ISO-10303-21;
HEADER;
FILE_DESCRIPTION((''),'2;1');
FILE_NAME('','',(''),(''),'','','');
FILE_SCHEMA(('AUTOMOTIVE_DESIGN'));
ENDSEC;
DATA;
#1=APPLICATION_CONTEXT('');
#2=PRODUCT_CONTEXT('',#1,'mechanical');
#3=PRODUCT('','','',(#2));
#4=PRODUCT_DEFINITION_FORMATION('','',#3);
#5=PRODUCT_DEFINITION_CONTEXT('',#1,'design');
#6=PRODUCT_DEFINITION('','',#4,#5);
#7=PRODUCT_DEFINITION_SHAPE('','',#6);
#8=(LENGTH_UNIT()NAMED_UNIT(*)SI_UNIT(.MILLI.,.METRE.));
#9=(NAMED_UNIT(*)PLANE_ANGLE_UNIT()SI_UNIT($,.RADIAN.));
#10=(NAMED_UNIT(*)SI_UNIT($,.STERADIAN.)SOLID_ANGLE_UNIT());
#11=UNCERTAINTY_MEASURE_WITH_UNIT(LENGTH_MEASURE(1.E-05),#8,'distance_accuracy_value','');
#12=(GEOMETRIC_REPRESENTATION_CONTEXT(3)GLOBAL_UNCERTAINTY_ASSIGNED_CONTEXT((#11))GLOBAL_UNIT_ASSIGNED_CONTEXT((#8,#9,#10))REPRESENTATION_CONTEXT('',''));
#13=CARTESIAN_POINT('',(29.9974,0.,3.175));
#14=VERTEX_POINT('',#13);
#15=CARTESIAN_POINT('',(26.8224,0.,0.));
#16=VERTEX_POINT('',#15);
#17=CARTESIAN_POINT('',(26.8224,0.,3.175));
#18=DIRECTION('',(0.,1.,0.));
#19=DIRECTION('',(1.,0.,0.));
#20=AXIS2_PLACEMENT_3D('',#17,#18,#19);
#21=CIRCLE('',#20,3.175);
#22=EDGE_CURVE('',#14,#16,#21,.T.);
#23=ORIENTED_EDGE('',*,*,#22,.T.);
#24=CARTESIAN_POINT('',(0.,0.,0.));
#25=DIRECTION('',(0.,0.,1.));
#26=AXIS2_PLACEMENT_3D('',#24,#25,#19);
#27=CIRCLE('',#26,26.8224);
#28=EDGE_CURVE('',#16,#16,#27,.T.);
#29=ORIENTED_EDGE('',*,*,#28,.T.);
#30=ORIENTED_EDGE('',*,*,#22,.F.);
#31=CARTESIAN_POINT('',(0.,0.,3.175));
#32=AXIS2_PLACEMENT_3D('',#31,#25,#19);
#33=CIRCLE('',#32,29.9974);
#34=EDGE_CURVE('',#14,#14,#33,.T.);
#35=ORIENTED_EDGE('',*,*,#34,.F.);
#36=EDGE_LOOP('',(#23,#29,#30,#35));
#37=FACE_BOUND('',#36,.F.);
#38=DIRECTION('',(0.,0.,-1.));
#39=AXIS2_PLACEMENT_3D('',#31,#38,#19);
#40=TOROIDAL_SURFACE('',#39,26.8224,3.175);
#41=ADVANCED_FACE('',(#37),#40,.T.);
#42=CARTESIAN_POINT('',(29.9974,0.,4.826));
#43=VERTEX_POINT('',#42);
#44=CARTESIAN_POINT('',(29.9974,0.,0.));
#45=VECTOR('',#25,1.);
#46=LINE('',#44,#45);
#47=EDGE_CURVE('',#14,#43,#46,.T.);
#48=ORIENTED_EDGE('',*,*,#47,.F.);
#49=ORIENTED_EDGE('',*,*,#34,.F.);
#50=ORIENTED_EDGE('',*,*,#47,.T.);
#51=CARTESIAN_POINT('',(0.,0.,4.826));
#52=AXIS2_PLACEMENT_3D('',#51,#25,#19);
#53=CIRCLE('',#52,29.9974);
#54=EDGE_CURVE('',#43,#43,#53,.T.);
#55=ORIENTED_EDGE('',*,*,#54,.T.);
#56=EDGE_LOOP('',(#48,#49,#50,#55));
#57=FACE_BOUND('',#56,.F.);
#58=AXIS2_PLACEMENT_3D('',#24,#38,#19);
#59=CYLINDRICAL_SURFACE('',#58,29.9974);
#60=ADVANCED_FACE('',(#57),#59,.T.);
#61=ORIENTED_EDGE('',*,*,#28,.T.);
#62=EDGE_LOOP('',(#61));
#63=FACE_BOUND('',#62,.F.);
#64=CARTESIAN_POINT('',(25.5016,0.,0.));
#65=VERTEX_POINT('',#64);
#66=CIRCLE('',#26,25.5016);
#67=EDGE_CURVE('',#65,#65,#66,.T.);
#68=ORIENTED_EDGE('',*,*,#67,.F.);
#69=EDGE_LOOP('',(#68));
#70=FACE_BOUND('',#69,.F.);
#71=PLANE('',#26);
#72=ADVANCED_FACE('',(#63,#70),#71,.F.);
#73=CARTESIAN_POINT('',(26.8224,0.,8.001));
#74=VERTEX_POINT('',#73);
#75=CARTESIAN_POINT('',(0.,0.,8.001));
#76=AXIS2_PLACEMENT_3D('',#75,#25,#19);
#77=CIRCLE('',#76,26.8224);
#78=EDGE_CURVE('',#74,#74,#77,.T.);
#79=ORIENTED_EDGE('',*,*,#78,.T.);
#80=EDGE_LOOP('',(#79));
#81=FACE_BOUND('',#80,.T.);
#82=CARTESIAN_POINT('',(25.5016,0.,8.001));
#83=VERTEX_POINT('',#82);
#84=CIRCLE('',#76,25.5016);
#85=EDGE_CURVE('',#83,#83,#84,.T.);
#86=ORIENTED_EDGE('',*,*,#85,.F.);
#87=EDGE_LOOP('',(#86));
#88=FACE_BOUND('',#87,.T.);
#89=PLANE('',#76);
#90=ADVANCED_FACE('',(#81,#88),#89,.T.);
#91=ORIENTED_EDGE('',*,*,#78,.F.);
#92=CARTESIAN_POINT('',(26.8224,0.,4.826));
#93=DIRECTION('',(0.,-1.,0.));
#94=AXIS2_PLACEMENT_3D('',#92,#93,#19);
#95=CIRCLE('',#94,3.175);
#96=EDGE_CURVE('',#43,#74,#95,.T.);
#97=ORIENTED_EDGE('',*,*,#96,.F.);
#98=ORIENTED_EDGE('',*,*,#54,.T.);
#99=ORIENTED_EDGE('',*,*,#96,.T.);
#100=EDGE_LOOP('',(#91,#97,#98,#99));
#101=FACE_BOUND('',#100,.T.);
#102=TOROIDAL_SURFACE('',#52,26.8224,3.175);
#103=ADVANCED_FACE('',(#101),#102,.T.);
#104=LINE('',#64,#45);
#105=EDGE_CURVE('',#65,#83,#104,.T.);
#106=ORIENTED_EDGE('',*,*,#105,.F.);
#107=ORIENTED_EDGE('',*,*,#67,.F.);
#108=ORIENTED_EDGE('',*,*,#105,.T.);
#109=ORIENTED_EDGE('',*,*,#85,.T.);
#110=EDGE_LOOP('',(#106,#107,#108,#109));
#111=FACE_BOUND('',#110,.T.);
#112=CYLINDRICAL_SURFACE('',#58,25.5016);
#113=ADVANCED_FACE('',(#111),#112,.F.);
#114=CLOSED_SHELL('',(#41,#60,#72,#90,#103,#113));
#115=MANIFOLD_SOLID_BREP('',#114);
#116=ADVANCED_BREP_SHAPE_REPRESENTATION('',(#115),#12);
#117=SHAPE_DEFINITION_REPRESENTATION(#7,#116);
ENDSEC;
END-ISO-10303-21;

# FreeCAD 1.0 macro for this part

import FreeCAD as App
import Part
import Sketcher
Q = App.Units.Quantity


def edges_at(feature, points):
    """Names of the edges that pass closest to the given points."""
    edges = feature.Shape.Edges
    near = lambda p: min(range(len(edges)), key=lambda i: edges[i].distToShape(Part.Vertex(*p))[0])
    return sorted({f"Edge{near(p) + 1}" for p in points})

doc = App.newDocument("Part")
body = doc.addObject("PartDesign::Body", "Body")

# Sketch on XY plane
sketch1 = body.newObject("Sketcher::SketchObject", "Sketch")
sketch1.AttachmentSupport = (doc.getObject("XY_Plane"), [""])
sketch1.MapMode = "FlatFace"
sketch1.addGeometry([
    Part.Circle(App.Vector(0, 0, 0), App.Vector(0, 0, 1), 29.9974),
    Part.Circle(App.Vector(0, 0, 0), App.Vector(0, 0, 1), 25.5016),
], False)
sketch1.addConstraint([
    Sketcher.Constraint("Coincident", 0, 3, -1, 1),
    Sketcher.Constraint("Coincident", 1, 3, -1, 1),
    Sketcher.Constraint("Diameter", 0, Q("2.362 in")),
    Sketcher.Constraint("Diameter", 1, Q("2.008 in")),
])
pad1 = body.newObject("PartDesign::Pad", "Pad")
pad1.Profile = sketch1
pad1.Length = Q("0.315 in")
doc.recompute()

fillet = body.newObject("PartDesign::Fillet", "Fillet")
fillet.Base = (pad1, edges_at(pad1, [(-29.997, 0, 8.001), (-29.997, 0, 0)]))
fillet.Radius = Q("0.125 in")

doc.recompute()
